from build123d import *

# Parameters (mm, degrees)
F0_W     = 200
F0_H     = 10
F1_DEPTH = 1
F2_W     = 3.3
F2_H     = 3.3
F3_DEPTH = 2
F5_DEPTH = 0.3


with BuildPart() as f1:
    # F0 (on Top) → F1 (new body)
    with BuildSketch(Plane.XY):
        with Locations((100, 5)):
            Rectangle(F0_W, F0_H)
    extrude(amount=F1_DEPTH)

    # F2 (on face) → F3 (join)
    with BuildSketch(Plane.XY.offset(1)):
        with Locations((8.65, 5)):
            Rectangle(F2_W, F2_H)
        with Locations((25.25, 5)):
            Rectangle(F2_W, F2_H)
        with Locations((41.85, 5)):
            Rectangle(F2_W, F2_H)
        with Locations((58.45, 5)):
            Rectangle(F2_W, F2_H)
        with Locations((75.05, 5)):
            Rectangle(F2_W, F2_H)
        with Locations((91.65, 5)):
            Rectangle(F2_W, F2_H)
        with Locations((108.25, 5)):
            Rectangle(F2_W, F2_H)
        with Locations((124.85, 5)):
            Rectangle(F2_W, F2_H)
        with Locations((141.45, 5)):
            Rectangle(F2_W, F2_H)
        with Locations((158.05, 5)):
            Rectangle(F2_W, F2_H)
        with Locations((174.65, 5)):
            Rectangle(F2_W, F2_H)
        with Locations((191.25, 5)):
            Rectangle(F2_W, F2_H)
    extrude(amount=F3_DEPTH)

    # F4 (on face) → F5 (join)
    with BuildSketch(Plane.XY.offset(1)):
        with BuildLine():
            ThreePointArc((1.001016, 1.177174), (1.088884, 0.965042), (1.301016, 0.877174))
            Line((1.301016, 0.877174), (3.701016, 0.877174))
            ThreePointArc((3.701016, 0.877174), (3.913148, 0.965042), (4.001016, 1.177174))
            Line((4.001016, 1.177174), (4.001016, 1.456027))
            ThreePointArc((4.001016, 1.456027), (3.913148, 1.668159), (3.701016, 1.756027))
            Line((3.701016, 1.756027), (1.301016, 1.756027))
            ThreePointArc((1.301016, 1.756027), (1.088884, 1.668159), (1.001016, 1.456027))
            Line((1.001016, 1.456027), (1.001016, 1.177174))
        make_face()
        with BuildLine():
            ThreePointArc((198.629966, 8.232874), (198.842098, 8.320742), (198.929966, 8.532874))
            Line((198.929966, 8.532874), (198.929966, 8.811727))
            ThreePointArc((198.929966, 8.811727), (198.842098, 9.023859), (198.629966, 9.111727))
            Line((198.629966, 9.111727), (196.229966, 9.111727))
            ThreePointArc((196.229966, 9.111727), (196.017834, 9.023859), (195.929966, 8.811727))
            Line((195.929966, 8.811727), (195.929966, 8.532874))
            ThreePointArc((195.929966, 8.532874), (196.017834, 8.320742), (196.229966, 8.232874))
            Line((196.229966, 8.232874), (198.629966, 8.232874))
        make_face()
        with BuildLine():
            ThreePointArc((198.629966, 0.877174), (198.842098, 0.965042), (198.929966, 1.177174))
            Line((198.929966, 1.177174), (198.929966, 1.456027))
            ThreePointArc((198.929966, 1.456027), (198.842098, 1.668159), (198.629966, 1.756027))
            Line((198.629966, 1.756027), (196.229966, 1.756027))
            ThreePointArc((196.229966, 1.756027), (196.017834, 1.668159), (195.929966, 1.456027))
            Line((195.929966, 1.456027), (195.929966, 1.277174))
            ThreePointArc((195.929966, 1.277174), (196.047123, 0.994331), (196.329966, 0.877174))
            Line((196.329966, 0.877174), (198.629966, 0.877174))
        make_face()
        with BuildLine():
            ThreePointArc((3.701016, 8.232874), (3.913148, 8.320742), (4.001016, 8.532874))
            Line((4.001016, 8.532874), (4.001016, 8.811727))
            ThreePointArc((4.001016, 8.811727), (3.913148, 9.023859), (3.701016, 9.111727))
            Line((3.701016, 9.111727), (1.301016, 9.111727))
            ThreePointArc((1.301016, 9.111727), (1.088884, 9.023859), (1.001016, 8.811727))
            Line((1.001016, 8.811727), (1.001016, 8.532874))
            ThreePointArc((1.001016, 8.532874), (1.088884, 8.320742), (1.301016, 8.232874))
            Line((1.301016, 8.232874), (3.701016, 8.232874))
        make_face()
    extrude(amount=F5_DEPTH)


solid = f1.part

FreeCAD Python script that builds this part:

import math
import FreeCAD as App
import Part
import Sketcher

V = App.Vector
Q = App.Units.Quantity


def add_polygon(sketch, points):
    """Adds a closed chain of lines whose ends are joined by coincident constraints."""
    first, n = sketch.GeometryCount, len(points)
    for a, b in zip(points, points[1:] + points[:1]):
        sketch.addGeometry(Part.LineSegment(App.Vector(*a, 0), App.Vector(*b, 0)), False)
    for i in range(n):
        sketch.addConstraint(Sketcher.Constraint("Coincident", first + i, 2, first + (i + 1) % n, 1))

doc = App.newDocument("Part")
body = doc.addObject("PartDesign::Body", "Body")

# Sketch on XY plane
sketch1 = body.newObject("Sketcher::SketchObject", "Sketch")
sketch1.AttachmentSupport = (doc.getObject("XY_Plane"), [""])
sketch1.MapMode = "FlatFace"
add_polygon(sketch1, [(0, 10), (0, 0), (200, 0), (200, 10)])  # lines 0-3
sketch1.addConstraint(Sketcher.Constraint("Vertical", 0))
sketch1.addConstraint(Sketcher.Constraint("Horizontal", 1))
sketch1.addConstraint(Sketcher.Constraint("Vertical", 2))
sketch1.addConstraint(Sketcher.Constraint("Horizontal", 3))
sketch1.addConstraint(Sketcher.Constraint("Coincident", 0, 2, -1, 1))
sketch1.addConstraint(Sketcher.Constraint("DistanceX", 1, 1, 1, 2, Q("200 mm")))
sketch1.addConstraint(Sketcher.Constraint("DistanceY", 0, 2, 0, 1, Q("10 mm")))
pad1 = body.newObject("PartDesign::Pad", "Pad")
pad1.Profile = sketch1
pad1.Length = 1

# Sketch on XY plane
sketch2 = body.newObject("Sketcher::SketchObject", "Sketch001")
sketch2.AttachmentSupport = (doc.getObject("XY_Plane"), [""])
sketch2.MapMode = "FlatFace"
sketch2.AttachmentOffset = App.Placement(V(0, 0, 1), App.Rotation())
add_polygon(sketch2, [(7, 6.65), (7, 3.35), (10.3, 3.35), (10.3, 6.65)])  # lines 0-3
add_polygon(sketch2, [(23.6, 6.65), (23.6, 3.35), (26.9, 3.35), (26.9, 6.65)])  # lines 4-7
add_polygon(sketch2, [(40.2, 6.65), (40.2, 3.35), (43.5, 3.35), (43.5, 6.65)])  # lines 8-11
add_polygon(sketch2, [(56.8, 6.65), (56.8, 3.35), (60.1, 3.35), (60.1, 6.65)])  # lines 12-15
add_polygon(sketch2, [(73.4, 6.65), (73.4, 3.35), (76.7, 3.35), (76.7, 6.65)])  # lines 16-19
add_polygon(sketch2, [(90, 6.65), (90, 3.35), (93.3, 3.35), (93.3, 6.65)])  # lines 20-23
add_polygon(sketch2, [(106.6, 6.65), (106.6, 3.35), (109.9, 3.35), (109.9, 6.65)])  # lines 24-27
add_polygon(sketch2, [(123.2, 6.65), (123.2, 3.35), (126.5, 3.35), (126.5, 6.65)])  # lines 28-31
add_polygon(sketch2, [(139.8, 6.65), (139.8, 3.35), (143.1, 3.35), (143.1, 6.65)])  # lines 32-35
add_polygon(sketch2, [(156.4, 6.65), (156.4, 3.35), (159.7, 3.35), (159.7, 6.65)])  # lines 36-39
add_polygon(sketch2, [(173, 6.65), (173, 3.35), (176.3, 3.35), (176.3, 6.65)])  # lines 40-43
add_polygon(sketch2, [(189.6, 6.65), (189.6, 3.35), (192.9, 3.35), (192.9, 6.65)])  # lines 44-47
sketch2.addConstraint(Sketcher.Constraint("Vertical", 0))
sketch2.addConstraint(Sketcher.Constraint("Horizontal", 1))
sketch2.addConstraint(Sketcher.Constraint("Vertical", 2))
sketch2.addConstraint(Sketcher.Constraint("Horizontal", 3))
sketch2.addConstraint(Sketcher.Constraint("Vertical", 4))
sketch2.addConstraint(Sketcher.Constraint("Horizontal", 5))
sketch2.addConstraint(Sketcher.Constraint("Vertical", 6))
sketch2.addConstraint(Sketcher.Constraint("Horizontal", 7))
sketch2.addConstraint(Sketcher.Constraint("Vertical", 8))
sketch2.addConstraint(Sketcher.Constraint("Horizontal", 9))
sketch2.addConstraint(Sketcher.Constraint("Vertical", 10))
sketch2.addConstraint(Sketcher.Constraint("Horizontal", 11))
sketch2.addConstraint(Sketcher.Constraint("Vertical", 12))
sketch2.addConstraint(Sketcher.Constraint("Horizontal", 13))
sketch2.addConstraint(Sketcher.Constraint("Vertical", 14))
sketch2.addConstraint(Sketcher.Constraint("Horizontal", 15))
sketch2.addConstraint(Sketcher.Constraint("Vertical", 16))
sketch2.addConstraint(Sketcher.Constraint("Horizontal", 17))
sketch2.addConstraint(Sketcher.Constraint("Vertical", 18))
sketch2.addConstraint(Sketcher.Constraint("Horizontal", 19))
sketch2.addConstraint(Sketcher.Constraint("Vertical", 20))
sketch2.addConstraint(Sketcher.Constraint("Horizontal", 21))
sketch2.addConstraint(Sketcher.Constraint("Vertical", 22))
sketch2.addConstraint(Sketcher.Constraint("Horizontal", 23))
sketch2.addConstraint(Sketcher.Constraint("Vertical", 24))
sketch2.addConstraint(Sketcher.Constraint("Horizontal", 25))
sketch2.addConstraint(Sketcher.Constraint("Vertical", 26))
sketch2.addConstraint(Sketcher.Constraint("Horizontal", 27))
sketch2.addConstraint(Sketcher.Constraint("Vertical", 28))
sketch2.addConstraint(Sketcher.Constraint("Horizontal", 29))
sketch2.addConstraint(Sketcher.Constraint("Vertical", 30))
sketch2.addConstraint(Sketcher.Constraint("Horizontal", 31))
sketch2.addConstraint(Sketcher.Constraint("Vertical", 32))
sketch2.addConstraint(Sketcher.Constraint("Horizontal", 33))
sketch2.addConstraint(Sketcher.Constraint("Vertical", 34))
sketch2.addConstraint(Sketcher.Constraint("Horizontal", 35))
sketch2.addConstraint(Sketcher.Constraint("Vertical", 36))
sketch2.addConstraint(Sketcher.Constraint("Horizontal", 37))
sketch2.addConstraint(Sketcher.Constraint("Vertical", 38))
sketch2.addConstraint(Sketcher.Constraint("Horizontal", 39))
sketch2.addConstraint(Sketcher.Constraint("Vertical", 40))
sketch2.addConstraint(Sketcher.Constraint("Horizontal", 41))
sketch2.addConstraint(Sketcher.Constraint("Vertical", 42))
sketch2.addConstraint(Sketcher.Constraint("Horizontal", 43))
sketch2.addConstraint(Sketcher.Constraint("Vertical", 44))
sketch2.addConstraint(Sketcher.Constraint("Horizontal", 45))
sketch2.addConstraint(Sketcher.Constraint("Vertical", 46))
sketch2.addConstraint(Sketcher.Constraint("Horizontal", 47))
sketch2.addConstraint(Sketcher.Constraint("Horizontal", 1, 2, 4, 2))
sketch2.addConstraint(Sketcher.Constraint("Horizontal", 3, 2, 6, 2))
sketch2.addConstraint(Sketcher.Constraint("Horizontal", 5, 2, 8, 2))
sketch2.addConstraint(Sketcher.Constraint("Horizontal", 7, 2, 10, 2))
sketch2.addConstraint(Sketcher.Constraint("Horizontal", 9, 2, 12, 2))
sketch2.addConstraint(Sketcher.Constraint("Horizontal", 11, 2, 14, 2))
sketch2.addConstraint(Sketcher.Constraint("Horizontal", 13, 2, 16, 2))
sketch2.addConstraint(Sketcher.Constraint("Horizontal", 15, 2, 18, 2))
sketch2.addConstraint(Sketcher.Constraint("Horizontal", 17, 2, 20, 2))
sketch2.addConstraint(Sketcher.Constraint("Horizontal", 19, 2, 22, 2))
sketch2.addConstraint(Sketcher.Constraint("Horizontal", 21, 2, 24, 2))
sketch2.addConstraint(Sketcher.Constraint("Horizontal", 23, 2, 26, 2))
sketch2.addConstraint(Sketcher.Constraint("Horizontal", 25, 2, 28, 2))
sketch2.addConstraint(Sketcher.Constraint("Horizontal", 27, 2, 30, 2))
sketch2.addConstraint(Sketcher.Constraint("Horizontal", 29, 2, 32, 2))
sketch2.addConstraint(Sketcher.Constraint("Horizontal", 31, 2, 34, 2))
sketch2.addConstraint(Sketcher.Constraint("Horizontal", 33, 2, 36, 2))
sketch2.addConstraint(Sketcher.Constraint("Horizontal", 35, 2, 38, 2))
sketch2.addConstraint(Sketcher.Constraint("Horizontal", 37, 2, 40, 2))
sketch2.addConstraint(Sketcher.Constraint("Horizontal", 39, 2, 42, 2))
sketch2.addConstraint(Sketcher.Constraint("Horizontal", 41, 2, 44, 2))
sketch2.addConstraint(Sketcher.Constraint("Horizontal", 43, 2, 46, 2))
sketch2.addConstraint(Sketcher.Constraint("Equal", 3, 5))
sketch2.addConstraint(Sketcher.Constraint("Equal", 7, 9))
sketch2.addConstraint(Sketcher.Constraint("Equal", 11, 13))
sketch2.addConstraint(Sketcher.Constraint("Equal", 15, 17))
sketch2.addConstraint(Sketcher.Constraint("Equal", 19, 21))
sketch2.addConstraint(Sketcher.Constraint("Equal", 23, 25))
sketch2.addConstraint(Sketcher.Constraint("Equal", 27, 29))
sketch2.addConstraint(Sketcher.Constraint("Equal", 31, 33))
sketch2.addConstraint(Sketcher.Constraint("Equal", 35, 37))
sketch2.addConstraint(Sketcher.Constraint("Equal", 39, 41))
sketch2.addConstraint(Sketcher.Constraint("Equal", 43, 45))
sketch2.addConstraint(Sketcher.Constraint("Equal", 47, 0))
sketch2.addConstraint(Sketcher.Constraint("DistanceX", 1, 1, 1, 2, Q("3.3 mm")))
sketch2.addConstraint(Sketcher.Constraint("DistanceX", -1, 1, 0, 2, Q("7 mm")))
sketch2.addConstraint(Sketcher.Constraint("DistanceX", -1, 1, 20, 2, Q("90 mm")))
sketch2.addConstraint(Sketcher.Constraint("DistanceX", -1, 1, 40, 2, Q("173 mm")))
sketch2.addConstraint(Sketcher.Constraint("DistanceX", -1, 1, 4, 2, Q("23.6 mm")))
sketch2.addConstraint(Sketcher.Constraint("DistanceX", -1, 1, 8, 2, Q("40.2 mm")))
sketch2.addConstraint(Sketcher.Constraint("DistanceX", -1, 1, 12, 2, Q("56.8 mm")))
sketch2.addConstraint(Sketcher.Constraint("DistanceX", -1, 1, 16, 2, Q("73.4 mm")))
sketch2.addConstraint(Sketcher.Constraint("DistanceX", -1, 1, 24, 2, Q("106.6 mm")))
sketch2.addConstraint(Sketcher.Constraint("DistanceX", -1, 1, 28, 2, Q("123.2 mm")))
sketch2.addConstraint(Sketcher.Constraint("DistanceX", -1, 1, 32, 2, Q("139.8 mm")))
sketch2.addConstraint(Sketcher.Constraint("DistanceX", -1, 1, 36, 2, Q("156.4 mm")))
sketch2.addConstraint(Sketcher.Constraint("DistanceX", -1, 1, 44, 2, Q("189.6 mm")))
sketch2.addConstraint(Sketcher.Constraint("DistanceY", -1, 1, 0, 2, Q("3.35 mm")))
pad2 = body.newObject("PartDesign::Pad", "Pad001")
pad2.Profile = sketch2
pad2.Length = 2

# Sketch on XY plane
sketch3 = body.newObject("Sketcher::SketchObject", "Sketch002")
sketch3.AttachmentSupport = (doc.getObject("XY_Plane"), [""])
sketch3.MapMode = "FlatFace"
sketch3.AttachmentOffset = App.Placement(V(0, 0, 1), App.Rotation())
sketch3.addGeometry(Part.ArcOfCircle(Part.Circle(V(1.301016, 1.177174, 0), V(0, 0, 1), 0.3), math.radians(-179.999978), math.radians(-90.000022)), False)
sketch3.addGeometry(Part.LineSegment(V(1.301016, 0.877174, 0), V(3.701016, 0.877174, 0)), False)
sketch3.addGeometry(Part.ArcOfCircle(Part.Circle(V(3.701016, 1.177174, 0), V(0, 0, 1), 0.3), math.radians(-89.999978), math.radians(-0.000022)), False)
sketch3.addGeometry(Part.LineSegment(V(4.001016, 1.177174, 0), V(4.001016, 1.456027, 0)), False)
sketch3.addGeometry(Part.ArcOfCircle(Part.Circle(V(3.701016, 1.456027, 0), V(0, 0, 1), 0.3), math.radians(0.000022), math.radians(89.999978)), False)
sketch3.addGeometry(Part.LineSegment(V(3.701016, 1.756027, 0), V(1.301016, 1.756027, 0)), False)
sketch3.addGeometry(Part.ArcOfCircle(Part.Circle(V(1.301016, 1.456027, 0), V(0, 0, 1), 0.3), math.radians(90.000022), math.radians(179.999978)), False)
sketch3.addGeometry(Part.LineSegment(V(1.001016, 1.456027, 0), V(1.001016, 1.177174, 0)), False)
sketch3.addGeometry(Part.ArcOfCircle(Part.Circle(V(198.629966, 8.532874, 0), V(0, 0, 1), 0.3), math.radians(-89.999978), math.radians(-0.000022)), False)
sketch3.addGeometry(Part.LineSegment(V(198.929966, 8.532874, 0), V(198.929966, 8.811727, 0)), False)
sketch3.addGeometry(Part.ArcOfCircle(Part.Circle(V(198.629966, 8.811727, 0), V(0, 0, 1), 0.3), math.radians(0.000022), math.radians(89.999978)), False)
sketch3.addGeometry(Part.LineSegment(V(198.629966, 9.111727, 0), V(196.229966, 9.111727, 0)), False)
sketch3.addGeometry(Part.ArcOfCircle(Part.Circle(V(196.229966, 8.811727, 0), V(0, 0, 1), 0.3), math.radians(90.000022), math.radians(179.999978)), False)
sketch3.addGeometry(Part.LineSegment(V(195.929966, 8.811727, 0), V(195.929966, 8.532874, 0)), False)
sketch3.addGeometry(Part.ArcOfCircle(Part.Circle(V(196.229966, 8.532874, 0), V(0, 0, 1), 0.3), math.radians(-179.999978), math.radians(-90.000022)), False)
sketch3.addGeometry(Part.LineSegment(V(196.229966, 8.232874, 0), V(198.629966, 8.232874, 0)), False)
sketch3.addGeometry(Part.ArcOfCircle(Part.Circle(V(198.629966, 1.177174, 0), V(0, 0, 1), 0.3), math.radians(-89.999978), math.radians(-0.000022)), False)
sketch3.addGeometry(Part.LineSegment(V(198.929966, 1.177174, 0), V(198.929966, 1.456027, 0)), False)
sketch3.addGeometry(Part.ArcOfCircle(Part.Circle(V(198.629966, 1.456027, 0), V(0, 0, 1), 0.3), math.radians(0.000022), math.radians(89.999978)), False)
sketch3.addGeometry(Part.LineSegment(V(198.629966, 1.756027, 0), V(196.229966, 1.756027, 0)), False)
sketch3.addGeometry(Part.ArcOfCircle(Part.Circle(V(196.229966, 1.456027, 0), V(0, 0, 1), 0.3), math.radians(90.000022), math.radians(179.999978)), False)
sketch3.addGeometry(Part.LineSegment(V(195.929966, 1.456027, 0), V(195.929966, 1.277174, 0)), False)
sketch3.addGeometry(Part.ArcOfCircle(Part.Circle(V(196.329965, 1.277173, 0), V(0, 0, 1), 0.399999), math.radians(179.999859), math.radians(270.000141)), False)
sketch3.addGeometry(Part.LineSegment(V(196.329966, 0.877174, 0), V(198.629966, 0.877174, 0)), False)
sketch3.addGeometry(Part.ArcOfCircle(Part.Circle(V(3.701016, 8.532874, 0), V(0, 0, 1), 0.3), math.radians(-89.999978), math.radians(-0.000022)), False)
sketch3.addGeometry(Part.LineSegment(V(4.001016, 8.532874, 0), V(4.001016, 8.811727, 0)), False)
sketch3.addGeometry(Part.ArcOfCircle(Part.Circle(V(3.701016, 8.811727, 0), V(0, 0, 1), 0.3), math.radians(0.000022), math.radians(89.999978)), False)
sketch3.addGeometry(Part.LineSegment(V(3.701016, 9.111727, 0), V(1.301016, 9.111727, 0)), False)
sketch3.addGeometry(Part.ArcOfCircle(Part.Circle(V(1.301016, 8.811727, 0), V(0, 0, 1), 0.3), math.radians(90.000022), math.radians(179.999978)), False)
sketch3.addGeometry(Part.LineSegment(V(1.001016, 8.811727, 0), V(1.001016, 8.532874, 0)), False)
sketch3.addGeometry(Part.ArcOfCircle(Part.Circle(V(1.301016, 8.532874, 0), V(0, 0, 1), 0.3), math.radians(-179.999978), math.radians(-90.000022)), False)
sketch3.addGeometry(Part.LineSegment(V(1.301016, 8.232874, 0), V(3.701016, 8.232874, 0)), False)
sketch3.addConstraint(Sketcher.Constraint("Tangent", 0, 2, 1, 1))
sketch3.addConstraint(Sketcher.Constraint("Tangent", 1, 2, 2, 1))
sketch3.addConstraint(Sketcher.Constraint("Tangent", 2, 2, 3, 1))
sketch3.addConstraint(Sketcher.Constraint("Tangent", 3, 2, 4, 1))
sketch3.addConstraint(Sketcher.Constraint("Tangent", 4, 2, 5, 1))
sketch3.addConstraint(Sketcher.Constraint("Tangent", 5, 2, 6, 1))
sketch3.addConstraint(Sketcher.Constraint("Tangent", 6, 2, 7, 1))
sketch3.addConstraint(Sketcher.Constraint("Tangent", 7, 2, 0, 1))
sketch3.addConstraint(Sketcher.Constraint("Tangent", 8, 2, 9, 1))
sketch3.addConstraint(Sketcher.Constraint("Tangent", 9, 2, 10, 1))
sketch3.addConstraint(Sketcher.Constraint("Tangent", 10, 2, 11, 1))
sketch3.addConstraint(Sketcher.Constraint("Tangent", 11, 2, 12, 1))
sketch3.addConstraint(Sketcher.Constraint("Tangent", 12, 2, 13, 1))
sketch3.addConstraint(Sketcher.Constraint("Tangent", 13, 2, 14, 1))
sketch3.addConstraint(Sketcher.Constraint("Tangent", 14, 2, 15, 1))
sketch3.addConstraint(Sketcher.Constraint("Tangent", 15, 2, 8, 1))
sketch3.addConstraint(Sketcher.Constraint("Tangent", 16, 2, 17, 1))
sketch3.addConstraint(Sketcher.Constraint("Tangent", 17, 2, 18, 1))
sketch3.addConstraint(Sketcher.Constraint("Tangent", 18, 2, 19, 1))
sketch3.addConstraint(Sketcher.Constraint("Tangent", 19, 2, 20, 1))
sketch3.addConstraint(Sketcher.Constraint("Tangent", 20, 2, 21, 1))
sketch3.addConstraint(Sketcher.Constraint("Coincident", 21, 2, 22, 1))
sketch3.addConstraint(Sketcher.Constraint("Coincident", 22, 2, 23, 1))
sketch3.addConstraint(Sketcher.Constraint("Tangent", 23, 2, 16, 1))
sketch3.addConstraint(Sketcher.Constraint("Tangent", 24, 2, 25, 1))
sketch3.addConstraint(Sketcher.Constraint("Tangent", 25, 2, 26, 1))
sketch3.addConstraint(Sketcher.Constraint("Tangent", 26, 2, 27, 1))
sketch3.addConstraint(Sketcher.Constraint("Tangent", 27, 2, 28, 1))
sketch3.addConstraint(Sketcher.Constraint("Tangent", 28, 2, 29, 1))
sketch3.addConstraint(Sketcher.Constraint("Tangent", 29, 2, 30, 1))
sketch3.addConstraint(Sketcher.Constraint("Tangent", 30, 2, 31, 1))
sketch3.addConstraint(Sketcher.Constraint("Tangent", 31, 2, 24, 1))
sketch3.addConstraint(Sketcher.Constraint("Horizontal", 1))
sketch3.addConstraint(Sketcher.Constraint("Vertical", 3))
sketch3.addConstraint(Sketcher.Constraint("Horizontal", 5))
sketch3.addConstraint(Sketcher.Constraint("Vertical", 7))
sketch3.addConstraint(Sketcher.Constraint("Vertical", 9))
sketch3.addConstraint(Sketcher.Constraint("Horizontal", 11))
sketch3.addConstraint(Sketcher.Constraint("Vertical", 13))
sketch3.addConstraint(Sketcher.Constraint("Horizontal", 15))
sketch3.addConstraint(Sketcher.Constraint("Vertical", 17))
sketch3.addConstraint(Sketcher.Constraint("Horizontal", 19))
sketch3.addConstraint(Sketcher.Constraint("Vertical", 21))
sketch3.addConstraint(Sketcher.Constraint("Horizontal", 23))
sketch3.addConstraint(Sketcher.Constraint("Vertical", 25))
sketch3.addConstraint(Sketcher.Constraint("Horizontal", 27))
sketch3.addConstraint(Sketcher.Constraint("Vertical", 29))
sketch3.addConstraint(Sketcher.Constraint("Horizontal", 31))
sketch3.addConstraint(Sketcher.Constraint("Equal", 0, 2))
sketch3.addConstraint(Sketcher.Constraint("Equal", 2, 4))
sketch3.addConstraint(Sketcher.Constraint("Equal", 4, 6))
sketch3.addConstraint(Sketcher.Constraint("Equal", 6, 8))
sketch3.addConstraint(Sketcher.Constraint("Equal", 8, 10))
sketch3.addConstraint(Sketcher.Constraint("Equal", 10, 12))
sketch3.addConstraint(Sketcher.Constraint("Equal", 12, 14))
sketch3.addConstraint(Sketcher.Constraint("Equal", 14, 16))
sketch3.addConstraint(Sketcher.Constraint("Equal", 16, 18))
sketch3.addConstraint(Sketcher.Constraint("Equal", 18, 20))
sketch3.addConstraint(Sketcher.Constraint("Equal", 20, 24))
sketch3.addConstraint(Sketcher.Constraint("Equal", 24, 26))
sketch3.addConstraint(Sketcher.Constraint("Equal", 26, 28))
sketch3.addConstraint(Sketcher.Constraint("Equal", 28, 30))
sketch3.addConstraint(Sketcher.Constraint("Horizontal", 2, 3, 16, 3))
sketch3.addConstraint(Sketcher.Constraint("Horizontal", 6, 3, 18, 3))
sketch3.addConstraint(Sketcher.Constraint("Horizontal", 14, 3, 24, 3))
sketch3.addConstraint(Sketcher.Constraint("Horizontal", 12, 3, 26, 3))
sketch3.addConstraint(Sketcher.Constraint("Horizontal", 22, 3, 21, 2))
sketch3.addConstraint(Sketcher.Constraint("Vertical", 10, 3, 16, 3))
sketch3.addConstraint(Sketcher.Constraint("Vertical", 14, 3, 20, 3))
sketch3.addConstraint(Sketcher.Constraint("Vertical", 4, 3, 24, 3))
sketch3.addConstraint(Sketcher.Constraint("Vertical", 6, 3, 28, 3))
sketch3.addConstraint(Sketcher.Constraint("Equal", 5, 11))
sketch3.addConstraint(Sketcher.Constraint("Equal", 7, 9))
sketch3.addConstraint(Sketcher.Constraint("Radius", 0, Q("0.3 mm")))
sketch3.addConstraint(Sketcher.Constraint("Radius", 22, Q("0.399999 mm")))
sketch3.addConstraint(Sketcher.Constraint("DistanceX", 1, 1, 1, 2, Q("2.4 mm")))
sketch3.addConstraint(Sketcher.Constraint("DistanceX", 23, 1, 23, 2, Q("2.3 mm")))
sketch3.addConstraint(Sketcher.Constraint("DistanceY", 2, 3, 8, 3, Q("7.3557 mm")))
sketch3.addConstraint(Sketcher.Constraint("DistanceY", 3, 1, 3, 2, Q("0.278853 mm")))
sketch3.addConstraint(Sketcher.Constraint("DistanceX", 4, 3, 8, 3, Q("194.92895 mm")))
sketch3.addConstraint(Sketcher.Constraint("DistanceX", -1, 1, 0, 3, Q("1.301016 mm")))
sketch3.addConstraint(Sketcher.Constraint("DistanceY", -1, 1, 0, 3, Q("1.177174 mm")))
pad3 = body.newObject("PartDesign::Pad", "Pad002")
pad3.Profile = sketch3
pad3.Length = 0.3

doc.recompute()
